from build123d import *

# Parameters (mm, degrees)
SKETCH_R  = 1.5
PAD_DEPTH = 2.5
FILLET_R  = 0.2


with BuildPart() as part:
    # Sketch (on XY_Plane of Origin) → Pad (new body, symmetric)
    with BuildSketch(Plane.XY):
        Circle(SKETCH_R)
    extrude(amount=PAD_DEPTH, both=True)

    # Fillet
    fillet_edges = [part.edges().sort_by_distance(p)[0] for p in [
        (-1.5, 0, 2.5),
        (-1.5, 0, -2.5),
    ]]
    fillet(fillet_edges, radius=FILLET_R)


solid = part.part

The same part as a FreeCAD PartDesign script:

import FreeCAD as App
import Part
import Sketcher
Q = App.Units.Quantity


def edges_at(feature, points):
    """Names of the edges that pass closest to the given points."""
    edges = feature.Shape.Edges
    near = lambda p: min(range(len(edges)), key=lambda i: edges[i].distToShape(Part.Vertex(*p))[0])
    return sorted({f"Edge{near(p) + 1}" for p in points})

doc = App.newDocument("Part")
body = doc.addObject("PartDesign::Body", "Body")

# Sketch on XY plane
sketch1 = body.newObject("Sketcher::SketchObject", "Sketch")
sketch1.AttachmentSupport = (doc.getObject("XY_Plane"), [""])
sketch1.MapMode = "FlatFace"
sketch1.addGeometry(Part.Circle(App.Vector(0, 0, 0), App.Vector(0, 0, 1), 1.5), False)
sketch1.addConstraint([
    Sketcher.Constraint("Coincident", 0, 3, -1, 1),
    Sketcher.Constraint("Diameter", 0, Q("3 mm")),
])
pad1 = body.newObject("PartDesign::Pad", "Pad")
pad1.Profile = sketch1
pad1.Length = 5
pad1.Midplane = True
doc.recompute()

fillet = body.newObject("PartDesign::Fillet", "Fillet")
fillet.Base = (pad1, edges_at(pad1, [(-1.5, 0, 2.5), (-1.5, 0, -2.5)]))
fillet.Radius = 0.2

doc.recompute()
